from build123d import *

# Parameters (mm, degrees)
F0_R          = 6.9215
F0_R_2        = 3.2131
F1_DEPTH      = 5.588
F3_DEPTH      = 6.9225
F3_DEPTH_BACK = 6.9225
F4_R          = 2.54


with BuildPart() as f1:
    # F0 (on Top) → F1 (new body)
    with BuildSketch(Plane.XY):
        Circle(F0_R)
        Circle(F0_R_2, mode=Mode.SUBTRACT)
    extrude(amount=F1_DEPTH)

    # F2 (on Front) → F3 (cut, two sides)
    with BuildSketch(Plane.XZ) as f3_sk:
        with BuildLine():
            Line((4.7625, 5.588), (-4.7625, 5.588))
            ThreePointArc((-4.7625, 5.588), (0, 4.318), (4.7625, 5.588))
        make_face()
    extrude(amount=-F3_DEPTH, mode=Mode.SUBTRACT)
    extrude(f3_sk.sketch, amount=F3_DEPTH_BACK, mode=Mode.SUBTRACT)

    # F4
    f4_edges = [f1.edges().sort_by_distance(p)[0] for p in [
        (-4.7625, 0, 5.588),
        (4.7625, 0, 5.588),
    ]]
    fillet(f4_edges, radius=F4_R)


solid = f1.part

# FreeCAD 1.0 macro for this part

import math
import FreeCAD as App
import Part
import Sketcher

V = App.Vector
Q = App.Units.Quantity


def edges_at(feature, points):
    """Names of the edges that pass closest to the given points."""
    edges = feature.Shape.Edges
    near = lambda p: min(range(len(edges)), key=lambda i: edges[i].distToShape(Part.Vertex(*p))[0])
    return sorted({f"Edge{near(p) + 1}" for p in points})

doc = App.newDocument("Part")
body = doc.addObject("PartDesign::Body", "Body")

# Sketch on XY plane
sketch1 = body.newObject("Sketcher::SketchObject", "Sketch")
sketch1.AttachmentSupport = (doc.getObject("XY_Plane"), [""])
sketch1.MapMode = "FlatFace"
sketch1.addGeometry(Part.Circle(V(0, 0, 0), V(0, 0, 1), 6.9215), False)
sketch1.addGeometry(Part.Circle(V(0, 0, 0), V(0, 0, 1), 3.2131), False)
sketch1.addConstraint(Sketcher.Constraint("Coincident", 0, 3, -1, 1))
sketch1.addConstraint(Sketcher.Constraint("Coincident", 1, 3, -1, 1))
sketch1.addConstraint(Sketcher.Constraint("Diameter", 0, Q("0.545 in")))
sketch1.addConstraint(Sketcher.Constraint("Diameter", 1, Q("0.253 in")))
pad1 = body.newObject("PartDesign::Pad", "Pad")
pad1.Profile = sketch1
pad1.Length = Q("0.22 in")

# Sketch on XZ plane
sketch2 = body.newObject("Sketcher::SketchObject", "Sketch001")
sketch2.AttachmentSupport = (doc.getObject("XZ_Plane"), [""])
sketch2.MapMode = "FlatFace"
sketch2.addGeometry(Part.LineSegment(V(4.7625, 5.588, 0), V(-4.7625, 5.588, 0)), False)
sketch2.addGeometry(Part.ArcOfCircle(Part.Circle(V(0, 13.882687, 0), V(0, 0, 1), 9.564687), math.radians(-119.862834), math.radians(-60.137166)), False)
sketch2.addConstraint(Sketcher.Constraint("Coincident", 0, 1, 1, 2))
sketch2.addConstraint(Sketcher.Constraint("Coincident", 1, 1, 0, 2))
sketch2.addConstraint(Sketcher.Constraint("Horizontal", 0))
sketch2.addConstraint(Sketcher.Constraint("PointOnObject", 1, 3, -2))
sketch2.addConstraint(Sketcher.Constraint("DistanceX", 0, 2, 0, 1, Q("0.375 in")))
sketch2.addConstraint(Sketcher.Constraint("DistanceY", -1, 1, 0, 1, Q("0.22 in")))
sketch2.addConstraint(Sketcher.Constraint("Radius", 1, 9.564687))
pocket1 = body.newObject("PartDesign::Pocket", "Pocket")
pocket1.Profile = sketch2
pocket1.Type = "ThroughAll"
pocket1.Midplane = True
doc.recompute()

fillet = body.newObject("PartDesign::Fillet", "Fillet")
fillet.Base = (pocket1, edges_at(pocket1, [(-4.763, 0, 5.588), (4.763, 0, 5.588)]))
fillet.Radius = Q("0.1 in")

doc.recompute()
